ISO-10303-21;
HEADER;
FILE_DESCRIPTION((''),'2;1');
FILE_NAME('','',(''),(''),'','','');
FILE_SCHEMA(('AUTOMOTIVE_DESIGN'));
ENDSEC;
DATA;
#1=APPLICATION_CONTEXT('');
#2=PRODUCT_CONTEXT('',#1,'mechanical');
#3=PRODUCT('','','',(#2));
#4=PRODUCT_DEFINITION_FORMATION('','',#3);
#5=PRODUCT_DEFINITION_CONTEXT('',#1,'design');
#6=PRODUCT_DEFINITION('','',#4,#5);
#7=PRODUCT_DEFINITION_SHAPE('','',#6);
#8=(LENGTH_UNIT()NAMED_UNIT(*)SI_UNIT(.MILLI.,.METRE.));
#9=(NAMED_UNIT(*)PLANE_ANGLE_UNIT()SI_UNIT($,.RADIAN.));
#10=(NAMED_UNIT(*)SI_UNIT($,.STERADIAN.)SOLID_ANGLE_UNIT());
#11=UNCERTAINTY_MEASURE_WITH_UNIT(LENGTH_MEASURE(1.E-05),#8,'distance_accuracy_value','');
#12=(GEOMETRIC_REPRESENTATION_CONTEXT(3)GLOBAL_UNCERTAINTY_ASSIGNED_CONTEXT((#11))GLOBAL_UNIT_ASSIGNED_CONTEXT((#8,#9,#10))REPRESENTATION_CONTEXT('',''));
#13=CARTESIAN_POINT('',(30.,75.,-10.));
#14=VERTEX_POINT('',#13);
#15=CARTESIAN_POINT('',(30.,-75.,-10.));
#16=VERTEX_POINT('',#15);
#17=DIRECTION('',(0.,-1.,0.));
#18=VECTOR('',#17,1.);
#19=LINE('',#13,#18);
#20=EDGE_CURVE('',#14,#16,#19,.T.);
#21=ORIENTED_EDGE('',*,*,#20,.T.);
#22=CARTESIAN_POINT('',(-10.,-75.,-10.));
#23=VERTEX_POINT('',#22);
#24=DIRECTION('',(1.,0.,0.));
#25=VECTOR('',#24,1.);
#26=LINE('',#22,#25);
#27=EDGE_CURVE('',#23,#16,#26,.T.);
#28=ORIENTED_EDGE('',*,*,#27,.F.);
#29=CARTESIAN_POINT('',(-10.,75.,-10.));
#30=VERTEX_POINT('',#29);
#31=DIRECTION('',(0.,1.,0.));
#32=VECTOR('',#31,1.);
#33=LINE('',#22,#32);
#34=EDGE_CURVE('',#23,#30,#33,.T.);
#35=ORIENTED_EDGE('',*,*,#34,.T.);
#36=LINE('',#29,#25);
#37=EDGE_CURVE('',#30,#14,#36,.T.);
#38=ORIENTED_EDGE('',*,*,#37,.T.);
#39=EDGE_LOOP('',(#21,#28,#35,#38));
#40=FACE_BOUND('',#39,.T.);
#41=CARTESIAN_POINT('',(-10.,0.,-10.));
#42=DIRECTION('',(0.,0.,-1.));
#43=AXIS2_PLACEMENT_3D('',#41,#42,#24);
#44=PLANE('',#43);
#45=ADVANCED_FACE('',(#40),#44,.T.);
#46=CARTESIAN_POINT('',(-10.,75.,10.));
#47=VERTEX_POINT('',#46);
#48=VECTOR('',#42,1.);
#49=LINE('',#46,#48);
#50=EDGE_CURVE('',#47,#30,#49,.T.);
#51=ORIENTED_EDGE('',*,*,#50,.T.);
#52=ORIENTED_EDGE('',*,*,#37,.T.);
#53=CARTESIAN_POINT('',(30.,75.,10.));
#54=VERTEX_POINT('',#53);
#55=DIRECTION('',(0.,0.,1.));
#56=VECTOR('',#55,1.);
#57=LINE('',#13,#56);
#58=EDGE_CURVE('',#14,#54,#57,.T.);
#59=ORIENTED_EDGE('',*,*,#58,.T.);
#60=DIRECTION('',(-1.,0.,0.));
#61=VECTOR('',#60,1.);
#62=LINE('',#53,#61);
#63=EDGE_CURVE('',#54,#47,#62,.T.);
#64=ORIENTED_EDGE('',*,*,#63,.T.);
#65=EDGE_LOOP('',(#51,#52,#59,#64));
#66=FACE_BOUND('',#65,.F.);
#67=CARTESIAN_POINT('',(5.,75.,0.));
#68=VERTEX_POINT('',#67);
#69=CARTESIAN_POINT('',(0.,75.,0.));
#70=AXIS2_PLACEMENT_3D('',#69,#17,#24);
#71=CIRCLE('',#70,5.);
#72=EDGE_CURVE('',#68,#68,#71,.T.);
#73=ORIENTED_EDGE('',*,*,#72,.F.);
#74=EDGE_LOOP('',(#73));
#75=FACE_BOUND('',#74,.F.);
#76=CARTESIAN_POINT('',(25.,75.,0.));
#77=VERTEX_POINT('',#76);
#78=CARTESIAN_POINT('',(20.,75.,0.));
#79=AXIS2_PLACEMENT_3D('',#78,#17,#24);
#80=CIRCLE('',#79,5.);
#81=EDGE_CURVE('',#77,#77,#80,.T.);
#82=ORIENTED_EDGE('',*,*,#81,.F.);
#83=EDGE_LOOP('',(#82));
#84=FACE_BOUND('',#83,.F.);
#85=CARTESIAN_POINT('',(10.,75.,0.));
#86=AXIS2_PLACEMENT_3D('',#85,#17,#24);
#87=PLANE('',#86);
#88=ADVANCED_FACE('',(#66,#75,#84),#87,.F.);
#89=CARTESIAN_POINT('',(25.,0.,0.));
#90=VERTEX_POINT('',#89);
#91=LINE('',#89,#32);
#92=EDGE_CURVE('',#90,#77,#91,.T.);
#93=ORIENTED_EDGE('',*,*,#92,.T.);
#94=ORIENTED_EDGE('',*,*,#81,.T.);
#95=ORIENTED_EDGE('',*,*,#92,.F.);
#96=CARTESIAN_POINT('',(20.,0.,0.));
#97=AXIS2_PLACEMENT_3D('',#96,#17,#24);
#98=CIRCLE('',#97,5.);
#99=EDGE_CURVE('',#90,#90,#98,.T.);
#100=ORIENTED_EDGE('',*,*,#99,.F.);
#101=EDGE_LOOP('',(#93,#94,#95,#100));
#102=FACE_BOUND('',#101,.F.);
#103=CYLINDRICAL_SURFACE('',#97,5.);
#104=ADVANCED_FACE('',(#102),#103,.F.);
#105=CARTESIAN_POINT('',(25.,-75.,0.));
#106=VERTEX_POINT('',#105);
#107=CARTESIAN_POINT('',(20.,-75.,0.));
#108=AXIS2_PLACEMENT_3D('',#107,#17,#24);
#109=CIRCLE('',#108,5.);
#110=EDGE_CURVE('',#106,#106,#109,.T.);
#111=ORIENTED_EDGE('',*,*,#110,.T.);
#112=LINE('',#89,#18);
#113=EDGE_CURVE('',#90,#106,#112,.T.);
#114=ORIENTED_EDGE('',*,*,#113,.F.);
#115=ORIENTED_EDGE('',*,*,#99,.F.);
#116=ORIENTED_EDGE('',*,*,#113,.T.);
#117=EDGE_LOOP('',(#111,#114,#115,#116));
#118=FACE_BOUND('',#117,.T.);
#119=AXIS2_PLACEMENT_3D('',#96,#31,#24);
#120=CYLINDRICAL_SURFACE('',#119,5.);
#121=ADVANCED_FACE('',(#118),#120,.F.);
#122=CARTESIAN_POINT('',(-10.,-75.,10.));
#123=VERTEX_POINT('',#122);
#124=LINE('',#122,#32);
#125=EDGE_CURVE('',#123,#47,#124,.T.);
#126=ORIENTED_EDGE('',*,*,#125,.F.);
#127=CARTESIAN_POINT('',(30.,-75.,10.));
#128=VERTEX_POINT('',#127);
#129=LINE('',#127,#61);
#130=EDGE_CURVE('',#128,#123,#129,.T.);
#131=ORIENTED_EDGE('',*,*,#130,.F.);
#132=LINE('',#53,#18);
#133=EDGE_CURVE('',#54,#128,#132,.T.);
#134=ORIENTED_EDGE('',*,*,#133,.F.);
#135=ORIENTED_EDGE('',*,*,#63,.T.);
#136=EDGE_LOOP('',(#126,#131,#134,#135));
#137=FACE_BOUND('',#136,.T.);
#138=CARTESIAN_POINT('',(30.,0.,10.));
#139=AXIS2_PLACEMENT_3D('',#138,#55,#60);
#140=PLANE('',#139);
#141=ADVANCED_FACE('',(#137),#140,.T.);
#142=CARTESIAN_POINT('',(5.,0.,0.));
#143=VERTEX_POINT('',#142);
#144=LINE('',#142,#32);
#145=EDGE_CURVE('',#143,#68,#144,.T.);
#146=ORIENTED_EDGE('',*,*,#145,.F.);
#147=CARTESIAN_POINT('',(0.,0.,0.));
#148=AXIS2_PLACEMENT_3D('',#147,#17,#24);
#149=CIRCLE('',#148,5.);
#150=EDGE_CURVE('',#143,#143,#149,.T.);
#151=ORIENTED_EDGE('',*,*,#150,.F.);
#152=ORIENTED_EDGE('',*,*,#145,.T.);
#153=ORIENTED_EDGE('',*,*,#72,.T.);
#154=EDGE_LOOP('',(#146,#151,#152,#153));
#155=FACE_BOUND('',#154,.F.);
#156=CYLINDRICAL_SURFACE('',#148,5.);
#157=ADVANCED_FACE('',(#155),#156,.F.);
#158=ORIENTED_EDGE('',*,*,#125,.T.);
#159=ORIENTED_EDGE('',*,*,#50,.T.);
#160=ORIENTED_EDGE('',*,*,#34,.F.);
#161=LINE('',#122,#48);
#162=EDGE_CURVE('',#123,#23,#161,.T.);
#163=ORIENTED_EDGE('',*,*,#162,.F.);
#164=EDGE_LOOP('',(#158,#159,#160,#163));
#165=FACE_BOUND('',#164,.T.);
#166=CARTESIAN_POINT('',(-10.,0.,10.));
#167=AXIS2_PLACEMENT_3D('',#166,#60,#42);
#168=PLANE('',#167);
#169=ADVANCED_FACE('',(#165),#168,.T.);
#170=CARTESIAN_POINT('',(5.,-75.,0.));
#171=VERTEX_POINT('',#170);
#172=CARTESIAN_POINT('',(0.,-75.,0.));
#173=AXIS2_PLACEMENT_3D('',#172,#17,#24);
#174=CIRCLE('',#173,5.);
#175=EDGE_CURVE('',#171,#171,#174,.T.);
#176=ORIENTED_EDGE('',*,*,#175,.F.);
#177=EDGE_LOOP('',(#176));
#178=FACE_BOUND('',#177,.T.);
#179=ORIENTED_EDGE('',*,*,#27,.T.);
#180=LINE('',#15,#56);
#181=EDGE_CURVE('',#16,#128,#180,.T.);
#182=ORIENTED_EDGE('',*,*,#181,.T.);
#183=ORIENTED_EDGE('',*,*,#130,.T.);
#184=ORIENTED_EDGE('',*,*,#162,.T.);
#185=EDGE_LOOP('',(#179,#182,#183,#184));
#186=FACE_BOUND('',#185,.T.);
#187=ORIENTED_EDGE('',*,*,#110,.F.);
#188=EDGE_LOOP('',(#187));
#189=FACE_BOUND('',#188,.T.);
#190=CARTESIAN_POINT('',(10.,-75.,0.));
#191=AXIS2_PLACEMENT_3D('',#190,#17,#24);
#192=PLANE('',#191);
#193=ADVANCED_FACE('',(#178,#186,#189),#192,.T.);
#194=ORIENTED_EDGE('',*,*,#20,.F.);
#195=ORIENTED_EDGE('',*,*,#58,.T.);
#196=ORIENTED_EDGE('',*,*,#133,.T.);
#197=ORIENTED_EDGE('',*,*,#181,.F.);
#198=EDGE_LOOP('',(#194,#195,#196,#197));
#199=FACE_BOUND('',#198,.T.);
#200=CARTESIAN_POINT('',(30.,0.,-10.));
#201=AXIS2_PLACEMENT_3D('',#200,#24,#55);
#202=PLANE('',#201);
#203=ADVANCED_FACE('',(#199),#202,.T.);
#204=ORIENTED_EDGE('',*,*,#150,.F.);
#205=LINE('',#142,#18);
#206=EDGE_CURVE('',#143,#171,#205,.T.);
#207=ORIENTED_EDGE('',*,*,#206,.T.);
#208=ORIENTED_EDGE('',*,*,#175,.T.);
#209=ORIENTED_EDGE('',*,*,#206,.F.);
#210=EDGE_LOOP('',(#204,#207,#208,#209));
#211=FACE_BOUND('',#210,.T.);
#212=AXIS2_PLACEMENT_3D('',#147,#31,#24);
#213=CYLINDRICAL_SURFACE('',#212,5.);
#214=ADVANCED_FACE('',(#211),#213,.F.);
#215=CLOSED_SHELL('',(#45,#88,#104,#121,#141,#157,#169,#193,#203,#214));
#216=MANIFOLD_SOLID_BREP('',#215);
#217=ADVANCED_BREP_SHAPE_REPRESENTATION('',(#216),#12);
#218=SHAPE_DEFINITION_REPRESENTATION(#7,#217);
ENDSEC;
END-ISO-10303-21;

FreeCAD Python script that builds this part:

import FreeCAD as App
import Part
import Sketcher
Q = App.Units.Quantity

doc = App.newDocument("Part")
body = doc.addObject("PartDesign::Body", "Body")

# Sketch on XZ plane
sketch1 = body.newObject("Sketcher::SketchObject", "Sketch")
sketch1.AttachmentSupport = (doc.getObject("XZ_Plane"), [""])
sketch1.MapMode = "FlatFace"
sketch1.addGeometry(Part.LineSegment(App.Vector(-10, -10, 0), App.Vector(30, -10, 0)), False)
sketch1.addGeometry(Part.LineSegment(App.Vector(30, -10, 0), App.Vector(30, 10, 0)), False)
sketch1.addGeometry(Part.LineSegment(App.Vector(30, 10, 0), App.Vector(-10, 10, 0)), False)
sketch1.addGeometry(Part.LineSegment(App.Vector(-10, 10, 0), App.Vector(-10, -10, 0)), False)
sketch1.addGeometry(Part.Circle(App.Vector(0, 0, 0), App.Vector(0, 0, 1), 5), False)
sketch1.addGeometry(Part.Circle(App.Vector(20, 0, 0), App.Vector(0, 0, 1), 5), False)
sketch1.addConstraint(Sketcher.Constraint("Coincident", 0, 2, 1, 1))
sketch1.addConstraint(Sketcher.Constraint("Coincident", 1, 2, 2, 1))
sketch1.addConstraint(Sketcher.Constraint("Coincident", 2, 2, 3, 1))
sketch1.addConstraint(Sketcher.Constraint("Coincident", 3, 2, 0, 1))
sketch1.addConstraint(Sketcher.Constraint("Horizontal", 0))
sketch1.addConstraint(Sketcher.Constraint("Vertical", 1))
sketch1.addConstraint(Sketcher.Constraint("Horizontal", 2))
sketch1.addConstraint(Sketcher.Constraint("Vertical", 3))
sketch1.addConstraint(Sketcher.Constraint("Coincident", 4, 3, -1, 1))
sketch1.addConstraint(Sketcher.Constraint("Equal", 4, 5))
sketch1.addConstraint(Sketcher.Constraint("PointOnObject", 5, 3, -1))
sketch1.addConstraint(Sketcher.Constraint("Diameter", 4, Q("10 mm")))
sketch1.addConstraint(Sketcher.Constraint("DistanceX", 0, 1, 0, 2, Q("40 mm")))
sketch1.addConstraint(Sketcher.Constraint("DistanceY", 1, 1, 1, 2, Q("20 mm")))
sketch1.addConstraint(Sketcher.Constraint("DistanceX", -1, 1, 5, 3, Q("20 mm")))
sketch1.addConstraint(Sketcher.Constraint("DistanceX", -1, 1, 0, 2, Q("30 mm")))
sketch1.addConstraint(Sketcher.Constraint("DistanceY", 0, 2, -1, 1, Q("10 mm")))
pad1 = body.newObject("PartDesign::Pad", "Pad")
pad1.Profile = sketch1
pad1.Type = "TwoLengths"
pad1.Length = 75
pad1.Length2 = 75

doc.recompute()
